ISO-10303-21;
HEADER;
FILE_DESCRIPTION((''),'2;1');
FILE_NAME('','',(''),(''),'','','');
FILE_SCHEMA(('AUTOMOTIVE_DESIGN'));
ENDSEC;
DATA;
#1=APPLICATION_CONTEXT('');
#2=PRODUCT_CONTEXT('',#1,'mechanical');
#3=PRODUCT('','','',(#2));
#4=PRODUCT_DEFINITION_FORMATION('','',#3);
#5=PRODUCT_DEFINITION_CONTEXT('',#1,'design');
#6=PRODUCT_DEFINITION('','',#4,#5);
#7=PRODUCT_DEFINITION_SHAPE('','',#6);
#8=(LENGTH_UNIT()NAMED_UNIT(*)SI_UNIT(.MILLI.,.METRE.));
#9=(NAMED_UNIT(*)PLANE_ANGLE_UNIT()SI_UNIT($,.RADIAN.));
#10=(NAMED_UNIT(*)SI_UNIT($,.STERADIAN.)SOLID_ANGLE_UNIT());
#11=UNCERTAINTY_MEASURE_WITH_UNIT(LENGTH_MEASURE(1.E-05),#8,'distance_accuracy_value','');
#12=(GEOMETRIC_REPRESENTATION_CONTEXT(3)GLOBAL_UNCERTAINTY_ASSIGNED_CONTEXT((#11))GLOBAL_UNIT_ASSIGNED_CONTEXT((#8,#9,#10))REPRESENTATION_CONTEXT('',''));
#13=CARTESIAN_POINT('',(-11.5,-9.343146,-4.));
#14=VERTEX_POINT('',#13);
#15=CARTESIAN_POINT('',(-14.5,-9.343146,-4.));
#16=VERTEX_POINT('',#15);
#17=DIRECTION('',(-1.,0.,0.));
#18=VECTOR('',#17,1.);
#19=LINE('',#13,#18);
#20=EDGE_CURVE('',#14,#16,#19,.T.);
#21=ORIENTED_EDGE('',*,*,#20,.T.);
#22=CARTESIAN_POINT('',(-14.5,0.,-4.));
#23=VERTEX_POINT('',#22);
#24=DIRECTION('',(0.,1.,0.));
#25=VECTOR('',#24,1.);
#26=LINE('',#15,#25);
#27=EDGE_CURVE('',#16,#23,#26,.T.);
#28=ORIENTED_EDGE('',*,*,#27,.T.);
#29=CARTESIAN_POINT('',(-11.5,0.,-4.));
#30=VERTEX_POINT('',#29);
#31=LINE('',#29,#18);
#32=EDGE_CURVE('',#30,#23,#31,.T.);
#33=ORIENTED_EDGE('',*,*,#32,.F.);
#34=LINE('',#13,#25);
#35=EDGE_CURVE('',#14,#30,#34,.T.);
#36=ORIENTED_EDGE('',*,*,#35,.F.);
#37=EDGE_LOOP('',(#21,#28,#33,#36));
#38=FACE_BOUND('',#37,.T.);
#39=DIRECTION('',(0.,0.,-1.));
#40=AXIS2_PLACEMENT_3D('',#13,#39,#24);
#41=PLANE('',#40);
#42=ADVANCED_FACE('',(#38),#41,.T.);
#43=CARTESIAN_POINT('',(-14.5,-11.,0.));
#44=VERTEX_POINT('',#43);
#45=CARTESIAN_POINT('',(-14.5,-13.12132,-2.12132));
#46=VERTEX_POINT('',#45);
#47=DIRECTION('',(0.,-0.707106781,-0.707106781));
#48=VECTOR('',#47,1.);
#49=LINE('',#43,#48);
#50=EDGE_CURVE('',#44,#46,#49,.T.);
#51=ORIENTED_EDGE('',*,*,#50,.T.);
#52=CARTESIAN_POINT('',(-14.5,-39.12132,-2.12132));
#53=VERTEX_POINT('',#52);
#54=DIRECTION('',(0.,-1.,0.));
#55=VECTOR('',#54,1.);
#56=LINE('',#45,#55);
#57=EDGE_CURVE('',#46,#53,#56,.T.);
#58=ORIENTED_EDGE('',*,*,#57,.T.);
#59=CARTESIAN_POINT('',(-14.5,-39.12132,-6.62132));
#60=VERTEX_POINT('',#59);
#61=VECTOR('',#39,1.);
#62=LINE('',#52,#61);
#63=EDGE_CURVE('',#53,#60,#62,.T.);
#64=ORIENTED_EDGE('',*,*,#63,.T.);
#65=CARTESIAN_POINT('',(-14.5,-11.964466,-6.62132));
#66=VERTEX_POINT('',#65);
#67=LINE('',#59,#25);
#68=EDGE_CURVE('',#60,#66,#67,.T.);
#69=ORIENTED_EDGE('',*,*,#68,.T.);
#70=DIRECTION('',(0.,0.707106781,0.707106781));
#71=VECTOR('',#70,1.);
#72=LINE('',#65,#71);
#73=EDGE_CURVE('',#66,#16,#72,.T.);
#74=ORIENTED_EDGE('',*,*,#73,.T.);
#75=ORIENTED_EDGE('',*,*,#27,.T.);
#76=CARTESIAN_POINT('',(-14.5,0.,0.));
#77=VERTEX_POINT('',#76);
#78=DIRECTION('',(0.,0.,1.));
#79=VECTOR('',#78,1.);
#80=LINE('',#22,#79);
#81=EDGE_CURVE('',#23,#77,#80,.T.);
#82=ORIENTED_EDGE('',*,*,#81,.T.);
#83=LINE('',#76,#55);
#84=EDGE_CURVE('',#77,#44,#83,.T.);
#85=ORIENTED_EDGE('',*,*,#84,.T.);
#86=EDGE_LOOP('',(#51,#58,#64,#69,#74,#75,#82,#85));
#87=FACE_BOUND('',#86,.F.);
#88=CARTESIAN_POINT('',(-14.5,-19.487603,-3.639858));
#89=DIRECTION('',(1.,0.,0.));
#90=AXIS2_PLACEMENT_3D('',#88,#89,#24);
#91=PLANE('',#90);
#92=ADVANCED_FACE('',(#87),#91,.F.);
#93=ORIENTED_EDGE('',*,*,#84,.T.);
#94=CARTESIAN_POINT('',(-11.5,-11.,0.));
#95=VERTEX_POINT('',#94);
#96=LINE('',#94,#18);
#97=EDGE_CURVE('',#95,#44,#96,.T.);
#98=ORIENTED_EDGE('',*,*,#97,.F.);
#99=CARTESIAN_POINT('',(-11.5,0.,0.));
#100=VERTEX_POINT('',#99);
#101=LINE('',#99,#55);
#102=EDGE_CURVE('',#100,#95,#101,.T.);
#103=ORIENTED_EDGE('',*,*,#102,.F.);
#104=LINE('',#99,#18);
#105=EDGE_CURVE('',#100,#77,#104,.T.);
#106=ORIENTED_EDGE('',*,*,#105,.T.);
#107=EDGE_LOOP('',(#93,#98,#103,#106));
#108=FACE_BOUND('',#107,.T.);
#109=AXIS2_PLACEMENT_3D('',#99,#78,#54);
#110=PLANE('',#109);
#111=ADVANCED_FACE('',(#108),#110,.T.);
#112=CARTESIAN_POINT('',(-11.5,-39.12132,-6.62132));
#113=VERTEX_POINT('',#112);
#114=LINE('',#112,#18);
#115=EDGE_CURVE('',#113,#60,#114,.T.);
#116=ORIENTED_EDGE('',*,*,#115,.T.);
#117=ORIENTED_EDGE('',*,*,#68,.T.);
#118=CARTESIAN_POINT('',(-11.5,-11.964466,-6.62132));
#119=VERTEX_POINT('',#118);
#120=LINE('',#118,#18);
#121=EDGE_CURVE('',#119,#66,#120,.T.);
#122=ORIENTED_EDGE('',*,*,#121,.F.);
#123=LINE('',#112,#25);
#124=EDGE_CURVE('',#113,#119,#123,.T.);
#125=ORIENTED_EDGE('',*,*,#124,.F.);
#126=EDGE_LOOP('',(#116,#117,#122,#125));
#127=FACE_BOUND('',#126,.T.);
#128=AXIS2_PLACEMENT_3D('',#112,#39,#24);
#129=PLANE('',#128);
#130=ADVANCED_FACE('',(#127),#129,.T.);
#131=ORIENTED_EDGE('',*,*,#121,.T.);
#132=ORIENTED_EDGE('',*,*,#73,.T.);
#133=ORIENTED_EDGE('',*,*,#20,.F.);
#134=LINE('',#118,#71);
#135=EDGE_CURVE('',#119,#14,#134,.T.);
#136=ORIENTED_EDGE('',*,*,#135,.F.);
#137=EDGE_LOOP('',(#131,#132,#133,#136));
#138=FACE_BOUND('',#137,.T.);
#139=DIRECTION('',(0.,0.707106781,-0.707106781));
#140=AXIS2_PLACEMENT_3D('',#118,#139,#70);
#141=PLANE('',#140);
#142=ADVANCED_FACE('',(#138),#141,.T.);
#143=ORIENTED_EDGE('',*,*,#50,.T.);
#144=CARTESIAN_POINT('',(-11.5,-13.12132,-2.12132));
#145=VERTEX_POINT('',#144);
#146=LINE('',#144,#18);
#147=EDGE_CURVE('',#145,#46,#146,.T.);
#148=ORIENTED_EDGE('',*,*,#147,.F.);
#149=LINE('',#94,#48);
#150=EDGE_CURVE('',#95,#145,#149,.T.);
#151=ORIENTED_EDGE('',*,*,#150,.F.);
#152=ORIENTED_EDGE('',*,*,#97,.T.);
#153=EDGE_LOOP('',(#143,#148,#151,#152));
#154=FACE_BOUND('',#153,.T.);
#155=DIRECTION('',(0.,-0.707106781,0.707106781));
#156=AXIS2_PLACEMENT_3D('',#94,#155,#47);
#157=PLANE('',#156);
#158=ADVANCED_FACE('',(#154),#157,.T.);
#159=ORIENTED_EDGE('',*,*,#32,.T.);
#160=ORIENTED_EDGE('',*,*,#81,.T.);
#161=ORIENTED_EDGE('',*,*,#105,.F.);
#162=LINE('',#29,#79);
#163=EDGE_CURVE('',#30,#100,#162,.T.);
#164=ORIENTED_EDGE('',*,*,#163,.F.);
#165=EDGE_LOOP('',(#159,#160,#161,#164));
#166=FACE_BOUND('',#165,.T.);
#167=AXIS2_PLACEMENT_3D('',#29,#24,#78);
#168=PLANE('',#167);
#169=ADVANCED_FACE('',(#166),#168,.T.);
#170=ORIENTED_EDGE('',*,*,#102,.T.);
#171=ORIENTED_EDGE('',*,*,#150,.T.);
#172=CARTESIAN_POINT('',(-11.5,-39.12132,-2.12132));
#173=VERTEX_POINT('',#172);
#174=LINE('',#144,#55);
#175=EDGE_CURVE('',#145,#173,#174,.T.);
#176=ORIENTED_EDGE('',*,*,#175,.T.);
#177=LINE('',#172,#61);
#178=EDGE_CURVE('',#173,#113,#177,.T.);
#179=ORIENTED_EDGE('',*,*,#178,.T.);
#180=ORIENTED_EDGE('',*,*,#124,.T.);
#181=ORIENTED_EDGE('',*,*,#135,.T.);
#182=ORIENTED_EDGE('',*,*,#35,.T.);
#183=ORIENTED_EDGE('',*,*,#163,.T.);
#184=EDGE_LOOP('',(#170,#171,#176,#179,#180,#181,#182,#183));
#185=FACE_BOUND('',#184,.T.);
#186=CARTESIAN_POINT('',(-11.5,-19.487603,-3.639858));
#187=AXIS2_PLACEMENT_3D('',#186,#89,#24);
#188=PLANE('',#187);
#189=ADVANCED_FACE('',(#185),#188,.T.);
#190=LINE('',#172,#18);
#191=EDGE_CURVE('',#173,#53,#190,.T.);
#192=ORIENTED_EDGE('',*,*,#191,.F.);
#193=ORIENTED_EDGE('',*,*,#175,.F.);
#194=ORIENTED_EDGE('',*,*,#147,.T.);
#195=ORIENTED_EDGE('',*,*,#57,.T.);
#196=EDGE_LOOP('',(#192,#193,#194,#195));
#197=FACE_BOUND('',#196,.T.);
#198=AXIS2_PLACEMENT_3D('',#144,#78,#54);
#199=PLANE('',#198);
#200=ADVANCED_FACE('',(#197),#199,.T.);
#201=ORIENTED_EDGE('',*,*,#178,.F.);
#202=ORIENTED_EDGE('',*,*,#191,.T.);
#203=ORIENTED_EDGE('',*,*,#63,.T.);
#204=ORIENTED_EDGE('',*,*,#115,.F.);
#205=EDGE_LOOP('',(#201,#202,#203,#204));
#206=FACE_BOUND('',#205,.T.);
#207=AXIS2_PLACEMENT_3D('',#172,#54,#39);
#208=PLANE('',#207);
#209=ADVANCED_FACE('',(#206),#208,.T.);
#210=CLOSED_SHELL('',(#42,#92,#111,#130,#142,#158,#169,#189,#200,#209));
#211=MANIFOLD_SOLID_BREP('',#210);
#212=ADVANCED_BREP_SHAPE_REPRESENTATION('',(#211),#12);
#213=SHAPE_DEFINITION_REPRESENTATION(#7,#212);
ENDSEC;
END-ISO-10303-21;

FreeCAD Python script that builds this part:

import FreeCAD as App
import Part
import Sketcher
Q = App.Units.Quantity

doc = App.newDocument("Part")
params = doc.addObject("Spreadsheet::Sheet", "Params")
for row, (alias, value) in enumerate([
    ("sketch1_width", "11 mm"),
    ("sketch1_width2", "26 mm"),
    ("sketch1_height", "4 mm"),
    ("sketch1_length", "3 mm"),
    ("sketch1_height2", "4.5 mm"),
    ("pad1_length", "3 mm"),
], start=1):
    params.set(f"A{row}", alias)
    params.set(f"B{row}", "=" + value)
    params.setAlias(f"B{row}", alias)

body = doc.addObject("PartDesign::Body", "Body")

# Sketch on YZ plane
sketch1 = body.newObject("Sketcher::SketchObject", "Sketch")
sketch1.AttachmentSupport = (doc.getObject("YZ_Plane"), [""])
sketch1.MapMode = "FlatFace"
sketch1.AttachmentOffset = App.Placement(App.Vector(0, 0, -11.5), App.Rotation())
sketch1.addGeometry([
    Part.LineSegment(App.Vector(0, -4, 0), App.Vector(0, 0, 0)),  # 0
    Part.LineSegment(App.Vector(0, 0, 0), App.Vector(-11, 0, 0)),  # 1
    Part.LineSegment(App.Vector(-11, 0, 0), App.Vector(-13.12132, -2.12132, 0)),  # 2
    Part.LineSegment(App.Vector(-13.12132, -2.12132, 0), App.Vector(-39.12132, -2.12132, 0)),  # 3
    Part.LineSegment(App.Vector(-39.12132, -2.12132, 0), App.Vector(-39.12132, -6.62132, 0)),  # 4
    Part.LineSegment(App.Vector(-39.12132, -6.62132, 0), App.Vector(-11.964466, -6.62132, 0)),  # 5
    Part.LineSegment(App.Vector(-11.964466, -6.62132, 0), App.Vector(-9.343146, -4, 0)),  # 6
    Part.LineSegment(App.Vector(-9.343146, -4, 0), App.Vector(0, -4, 0)),  # 7
], False)
sketch1.addConstraint([
    Sketcher.Constraint("Coincident", 0, 2, 1, 1),
    Sketcher.Constraint("Coincident", 1, 2, 2, 1),
    Sketcher.Constraint("Coincident", 2, 2, 3, 1),
    Sketcher.Constraint("Coincident", 3, 2, 4, 1),
    Sketcher.Constraint("Coincident", 4, 2, 5, 1),
    Sketcher.Constraint("Coincident", 5, 2, 6, 1),
    Sketcher.Constraint("Coincident", 6, 2, 7, 1),
    Sketcher.Constraint("Coincident", 7, 2, 0, 1),
    Sketcher.Constraint("Vertical", 0),
    Sketcher.Constraint("Horizontal", 1),
    Sketcher.Constraint("Horizontal", 3),
    Sketcher.Constraint("Vertical", 4),
    Sketcher.Constraint("Horizontal", 5),
    Sketcher.Constraint("Horizontal", 7),
    Sketcher.Constraint("Coincident", 0, 2, -1, 1),
    Sketcher.Constraint("Parallel", 2, 6),
    Sketcher.Constraint("DistanceX", 1, 2, 1, 1, Q("11 mm")),
    Sketcher.Constraint("DistanceX", 3, 2, 3, 1, Q("26 mm")),
    Sketcher.Constraint("DistanceY", 0, 1, 0, 2, Q("4 mm")),
    Sketcher.Constraint("Angle", 2, Q("-135 deg")),
    Sketcher.Constraint("Distance", 2, Q("3 mm")),
    Sketcher.Constraint("DistanceY", 4, 2, 4, 1, Q("4.5 mm")),
    Sketcher.Constraint("DistanceX", 5, 1, 5, 2, Q("27.156854 mm")),
])
sketch1.setExpression("Constraints[16]", "Params.sketch1_width")
sketch1.setExpression("Constraints[17]", "Params.sketch1_width2")
sketch1.setExpression("Constraints[18]", "Params.sketch1_height")
sketch1.setExpression("Constraints[20]", "Params.sketch1_length")
sketch1.setExpression("Constraints[21]", "Params.sketch1_height2")
pad1 = body.newObject("PartDesign::Pad", "Pad")
pad1.Profile = sketch1
pad1.setExpression("Length", "Params.pad1_length")
pad1.Reversed = True

doc.recompute()
